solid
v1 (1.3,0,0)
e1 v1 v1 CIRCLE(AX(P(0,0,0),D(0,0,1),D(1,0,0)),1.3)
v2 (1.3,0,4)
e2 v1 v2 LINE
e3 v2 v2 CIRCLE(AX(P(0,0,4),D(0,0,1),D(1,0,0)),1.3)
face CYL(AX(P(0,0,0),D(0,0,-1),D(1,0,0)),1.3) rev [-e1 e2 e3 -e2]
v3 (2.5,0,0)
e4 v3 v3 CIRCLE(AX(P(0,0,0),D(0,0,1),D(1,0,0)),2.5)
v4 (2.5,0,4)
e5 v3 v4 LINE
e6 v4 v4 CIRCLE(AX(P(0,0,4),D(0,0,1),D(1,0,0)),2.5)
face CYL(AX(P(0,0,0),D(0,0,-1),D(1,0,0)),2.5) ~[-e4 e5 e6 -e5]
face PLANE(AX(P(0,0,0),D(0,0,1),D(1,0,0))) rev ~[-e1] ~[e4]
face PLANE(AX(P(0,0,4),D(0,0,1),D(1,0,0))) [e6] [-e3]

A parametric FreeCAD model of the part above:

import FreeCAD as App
import Part
import Sketcher
Q = App.Units.Quantity

doc = App.newDocument("Part")
body = doc.addObject("PartDesign::Body", "Body")

sketch1 = doc.addObject("Sketcher::SketchObject", "Sketch")
body.addObject(sketch1)
sketch1.AttachmentSupport = (doc.XY_Plane, [""])
sketch1.MapMode = "FlatFace"
sketch1.addGeometry(Part.Circle(App.Vector(0, 0, 0), App.Vector(0, 0, 1), 2.5), False)
sketch1.addGeometry(Part.Circle(App.Vector(0, 0, 0), App.Vector(0, 0, 1), 1.3), False)
sketch1.addConstraint(Sketcher.Constraint("Coincident", 0, 3, -1, 1))
sketch1.addConstraint(Sketcher.Constraint("Coincident", 1, 3, -1, 1))
sketch1.addConstraint(Sketcher.Constraint("Diameter", 0, Q("5 mm")))
sketch1.addConstraint(Sketcher.Constraint("Diameter", 1, Q("2.6 mm")))
pad1 = doc.addObject("PartDesign::Pad", "Pad")
body.addObject(pad1)
pad1.Profile = sketch1
pad1.Length = 4

doc.recompute()
